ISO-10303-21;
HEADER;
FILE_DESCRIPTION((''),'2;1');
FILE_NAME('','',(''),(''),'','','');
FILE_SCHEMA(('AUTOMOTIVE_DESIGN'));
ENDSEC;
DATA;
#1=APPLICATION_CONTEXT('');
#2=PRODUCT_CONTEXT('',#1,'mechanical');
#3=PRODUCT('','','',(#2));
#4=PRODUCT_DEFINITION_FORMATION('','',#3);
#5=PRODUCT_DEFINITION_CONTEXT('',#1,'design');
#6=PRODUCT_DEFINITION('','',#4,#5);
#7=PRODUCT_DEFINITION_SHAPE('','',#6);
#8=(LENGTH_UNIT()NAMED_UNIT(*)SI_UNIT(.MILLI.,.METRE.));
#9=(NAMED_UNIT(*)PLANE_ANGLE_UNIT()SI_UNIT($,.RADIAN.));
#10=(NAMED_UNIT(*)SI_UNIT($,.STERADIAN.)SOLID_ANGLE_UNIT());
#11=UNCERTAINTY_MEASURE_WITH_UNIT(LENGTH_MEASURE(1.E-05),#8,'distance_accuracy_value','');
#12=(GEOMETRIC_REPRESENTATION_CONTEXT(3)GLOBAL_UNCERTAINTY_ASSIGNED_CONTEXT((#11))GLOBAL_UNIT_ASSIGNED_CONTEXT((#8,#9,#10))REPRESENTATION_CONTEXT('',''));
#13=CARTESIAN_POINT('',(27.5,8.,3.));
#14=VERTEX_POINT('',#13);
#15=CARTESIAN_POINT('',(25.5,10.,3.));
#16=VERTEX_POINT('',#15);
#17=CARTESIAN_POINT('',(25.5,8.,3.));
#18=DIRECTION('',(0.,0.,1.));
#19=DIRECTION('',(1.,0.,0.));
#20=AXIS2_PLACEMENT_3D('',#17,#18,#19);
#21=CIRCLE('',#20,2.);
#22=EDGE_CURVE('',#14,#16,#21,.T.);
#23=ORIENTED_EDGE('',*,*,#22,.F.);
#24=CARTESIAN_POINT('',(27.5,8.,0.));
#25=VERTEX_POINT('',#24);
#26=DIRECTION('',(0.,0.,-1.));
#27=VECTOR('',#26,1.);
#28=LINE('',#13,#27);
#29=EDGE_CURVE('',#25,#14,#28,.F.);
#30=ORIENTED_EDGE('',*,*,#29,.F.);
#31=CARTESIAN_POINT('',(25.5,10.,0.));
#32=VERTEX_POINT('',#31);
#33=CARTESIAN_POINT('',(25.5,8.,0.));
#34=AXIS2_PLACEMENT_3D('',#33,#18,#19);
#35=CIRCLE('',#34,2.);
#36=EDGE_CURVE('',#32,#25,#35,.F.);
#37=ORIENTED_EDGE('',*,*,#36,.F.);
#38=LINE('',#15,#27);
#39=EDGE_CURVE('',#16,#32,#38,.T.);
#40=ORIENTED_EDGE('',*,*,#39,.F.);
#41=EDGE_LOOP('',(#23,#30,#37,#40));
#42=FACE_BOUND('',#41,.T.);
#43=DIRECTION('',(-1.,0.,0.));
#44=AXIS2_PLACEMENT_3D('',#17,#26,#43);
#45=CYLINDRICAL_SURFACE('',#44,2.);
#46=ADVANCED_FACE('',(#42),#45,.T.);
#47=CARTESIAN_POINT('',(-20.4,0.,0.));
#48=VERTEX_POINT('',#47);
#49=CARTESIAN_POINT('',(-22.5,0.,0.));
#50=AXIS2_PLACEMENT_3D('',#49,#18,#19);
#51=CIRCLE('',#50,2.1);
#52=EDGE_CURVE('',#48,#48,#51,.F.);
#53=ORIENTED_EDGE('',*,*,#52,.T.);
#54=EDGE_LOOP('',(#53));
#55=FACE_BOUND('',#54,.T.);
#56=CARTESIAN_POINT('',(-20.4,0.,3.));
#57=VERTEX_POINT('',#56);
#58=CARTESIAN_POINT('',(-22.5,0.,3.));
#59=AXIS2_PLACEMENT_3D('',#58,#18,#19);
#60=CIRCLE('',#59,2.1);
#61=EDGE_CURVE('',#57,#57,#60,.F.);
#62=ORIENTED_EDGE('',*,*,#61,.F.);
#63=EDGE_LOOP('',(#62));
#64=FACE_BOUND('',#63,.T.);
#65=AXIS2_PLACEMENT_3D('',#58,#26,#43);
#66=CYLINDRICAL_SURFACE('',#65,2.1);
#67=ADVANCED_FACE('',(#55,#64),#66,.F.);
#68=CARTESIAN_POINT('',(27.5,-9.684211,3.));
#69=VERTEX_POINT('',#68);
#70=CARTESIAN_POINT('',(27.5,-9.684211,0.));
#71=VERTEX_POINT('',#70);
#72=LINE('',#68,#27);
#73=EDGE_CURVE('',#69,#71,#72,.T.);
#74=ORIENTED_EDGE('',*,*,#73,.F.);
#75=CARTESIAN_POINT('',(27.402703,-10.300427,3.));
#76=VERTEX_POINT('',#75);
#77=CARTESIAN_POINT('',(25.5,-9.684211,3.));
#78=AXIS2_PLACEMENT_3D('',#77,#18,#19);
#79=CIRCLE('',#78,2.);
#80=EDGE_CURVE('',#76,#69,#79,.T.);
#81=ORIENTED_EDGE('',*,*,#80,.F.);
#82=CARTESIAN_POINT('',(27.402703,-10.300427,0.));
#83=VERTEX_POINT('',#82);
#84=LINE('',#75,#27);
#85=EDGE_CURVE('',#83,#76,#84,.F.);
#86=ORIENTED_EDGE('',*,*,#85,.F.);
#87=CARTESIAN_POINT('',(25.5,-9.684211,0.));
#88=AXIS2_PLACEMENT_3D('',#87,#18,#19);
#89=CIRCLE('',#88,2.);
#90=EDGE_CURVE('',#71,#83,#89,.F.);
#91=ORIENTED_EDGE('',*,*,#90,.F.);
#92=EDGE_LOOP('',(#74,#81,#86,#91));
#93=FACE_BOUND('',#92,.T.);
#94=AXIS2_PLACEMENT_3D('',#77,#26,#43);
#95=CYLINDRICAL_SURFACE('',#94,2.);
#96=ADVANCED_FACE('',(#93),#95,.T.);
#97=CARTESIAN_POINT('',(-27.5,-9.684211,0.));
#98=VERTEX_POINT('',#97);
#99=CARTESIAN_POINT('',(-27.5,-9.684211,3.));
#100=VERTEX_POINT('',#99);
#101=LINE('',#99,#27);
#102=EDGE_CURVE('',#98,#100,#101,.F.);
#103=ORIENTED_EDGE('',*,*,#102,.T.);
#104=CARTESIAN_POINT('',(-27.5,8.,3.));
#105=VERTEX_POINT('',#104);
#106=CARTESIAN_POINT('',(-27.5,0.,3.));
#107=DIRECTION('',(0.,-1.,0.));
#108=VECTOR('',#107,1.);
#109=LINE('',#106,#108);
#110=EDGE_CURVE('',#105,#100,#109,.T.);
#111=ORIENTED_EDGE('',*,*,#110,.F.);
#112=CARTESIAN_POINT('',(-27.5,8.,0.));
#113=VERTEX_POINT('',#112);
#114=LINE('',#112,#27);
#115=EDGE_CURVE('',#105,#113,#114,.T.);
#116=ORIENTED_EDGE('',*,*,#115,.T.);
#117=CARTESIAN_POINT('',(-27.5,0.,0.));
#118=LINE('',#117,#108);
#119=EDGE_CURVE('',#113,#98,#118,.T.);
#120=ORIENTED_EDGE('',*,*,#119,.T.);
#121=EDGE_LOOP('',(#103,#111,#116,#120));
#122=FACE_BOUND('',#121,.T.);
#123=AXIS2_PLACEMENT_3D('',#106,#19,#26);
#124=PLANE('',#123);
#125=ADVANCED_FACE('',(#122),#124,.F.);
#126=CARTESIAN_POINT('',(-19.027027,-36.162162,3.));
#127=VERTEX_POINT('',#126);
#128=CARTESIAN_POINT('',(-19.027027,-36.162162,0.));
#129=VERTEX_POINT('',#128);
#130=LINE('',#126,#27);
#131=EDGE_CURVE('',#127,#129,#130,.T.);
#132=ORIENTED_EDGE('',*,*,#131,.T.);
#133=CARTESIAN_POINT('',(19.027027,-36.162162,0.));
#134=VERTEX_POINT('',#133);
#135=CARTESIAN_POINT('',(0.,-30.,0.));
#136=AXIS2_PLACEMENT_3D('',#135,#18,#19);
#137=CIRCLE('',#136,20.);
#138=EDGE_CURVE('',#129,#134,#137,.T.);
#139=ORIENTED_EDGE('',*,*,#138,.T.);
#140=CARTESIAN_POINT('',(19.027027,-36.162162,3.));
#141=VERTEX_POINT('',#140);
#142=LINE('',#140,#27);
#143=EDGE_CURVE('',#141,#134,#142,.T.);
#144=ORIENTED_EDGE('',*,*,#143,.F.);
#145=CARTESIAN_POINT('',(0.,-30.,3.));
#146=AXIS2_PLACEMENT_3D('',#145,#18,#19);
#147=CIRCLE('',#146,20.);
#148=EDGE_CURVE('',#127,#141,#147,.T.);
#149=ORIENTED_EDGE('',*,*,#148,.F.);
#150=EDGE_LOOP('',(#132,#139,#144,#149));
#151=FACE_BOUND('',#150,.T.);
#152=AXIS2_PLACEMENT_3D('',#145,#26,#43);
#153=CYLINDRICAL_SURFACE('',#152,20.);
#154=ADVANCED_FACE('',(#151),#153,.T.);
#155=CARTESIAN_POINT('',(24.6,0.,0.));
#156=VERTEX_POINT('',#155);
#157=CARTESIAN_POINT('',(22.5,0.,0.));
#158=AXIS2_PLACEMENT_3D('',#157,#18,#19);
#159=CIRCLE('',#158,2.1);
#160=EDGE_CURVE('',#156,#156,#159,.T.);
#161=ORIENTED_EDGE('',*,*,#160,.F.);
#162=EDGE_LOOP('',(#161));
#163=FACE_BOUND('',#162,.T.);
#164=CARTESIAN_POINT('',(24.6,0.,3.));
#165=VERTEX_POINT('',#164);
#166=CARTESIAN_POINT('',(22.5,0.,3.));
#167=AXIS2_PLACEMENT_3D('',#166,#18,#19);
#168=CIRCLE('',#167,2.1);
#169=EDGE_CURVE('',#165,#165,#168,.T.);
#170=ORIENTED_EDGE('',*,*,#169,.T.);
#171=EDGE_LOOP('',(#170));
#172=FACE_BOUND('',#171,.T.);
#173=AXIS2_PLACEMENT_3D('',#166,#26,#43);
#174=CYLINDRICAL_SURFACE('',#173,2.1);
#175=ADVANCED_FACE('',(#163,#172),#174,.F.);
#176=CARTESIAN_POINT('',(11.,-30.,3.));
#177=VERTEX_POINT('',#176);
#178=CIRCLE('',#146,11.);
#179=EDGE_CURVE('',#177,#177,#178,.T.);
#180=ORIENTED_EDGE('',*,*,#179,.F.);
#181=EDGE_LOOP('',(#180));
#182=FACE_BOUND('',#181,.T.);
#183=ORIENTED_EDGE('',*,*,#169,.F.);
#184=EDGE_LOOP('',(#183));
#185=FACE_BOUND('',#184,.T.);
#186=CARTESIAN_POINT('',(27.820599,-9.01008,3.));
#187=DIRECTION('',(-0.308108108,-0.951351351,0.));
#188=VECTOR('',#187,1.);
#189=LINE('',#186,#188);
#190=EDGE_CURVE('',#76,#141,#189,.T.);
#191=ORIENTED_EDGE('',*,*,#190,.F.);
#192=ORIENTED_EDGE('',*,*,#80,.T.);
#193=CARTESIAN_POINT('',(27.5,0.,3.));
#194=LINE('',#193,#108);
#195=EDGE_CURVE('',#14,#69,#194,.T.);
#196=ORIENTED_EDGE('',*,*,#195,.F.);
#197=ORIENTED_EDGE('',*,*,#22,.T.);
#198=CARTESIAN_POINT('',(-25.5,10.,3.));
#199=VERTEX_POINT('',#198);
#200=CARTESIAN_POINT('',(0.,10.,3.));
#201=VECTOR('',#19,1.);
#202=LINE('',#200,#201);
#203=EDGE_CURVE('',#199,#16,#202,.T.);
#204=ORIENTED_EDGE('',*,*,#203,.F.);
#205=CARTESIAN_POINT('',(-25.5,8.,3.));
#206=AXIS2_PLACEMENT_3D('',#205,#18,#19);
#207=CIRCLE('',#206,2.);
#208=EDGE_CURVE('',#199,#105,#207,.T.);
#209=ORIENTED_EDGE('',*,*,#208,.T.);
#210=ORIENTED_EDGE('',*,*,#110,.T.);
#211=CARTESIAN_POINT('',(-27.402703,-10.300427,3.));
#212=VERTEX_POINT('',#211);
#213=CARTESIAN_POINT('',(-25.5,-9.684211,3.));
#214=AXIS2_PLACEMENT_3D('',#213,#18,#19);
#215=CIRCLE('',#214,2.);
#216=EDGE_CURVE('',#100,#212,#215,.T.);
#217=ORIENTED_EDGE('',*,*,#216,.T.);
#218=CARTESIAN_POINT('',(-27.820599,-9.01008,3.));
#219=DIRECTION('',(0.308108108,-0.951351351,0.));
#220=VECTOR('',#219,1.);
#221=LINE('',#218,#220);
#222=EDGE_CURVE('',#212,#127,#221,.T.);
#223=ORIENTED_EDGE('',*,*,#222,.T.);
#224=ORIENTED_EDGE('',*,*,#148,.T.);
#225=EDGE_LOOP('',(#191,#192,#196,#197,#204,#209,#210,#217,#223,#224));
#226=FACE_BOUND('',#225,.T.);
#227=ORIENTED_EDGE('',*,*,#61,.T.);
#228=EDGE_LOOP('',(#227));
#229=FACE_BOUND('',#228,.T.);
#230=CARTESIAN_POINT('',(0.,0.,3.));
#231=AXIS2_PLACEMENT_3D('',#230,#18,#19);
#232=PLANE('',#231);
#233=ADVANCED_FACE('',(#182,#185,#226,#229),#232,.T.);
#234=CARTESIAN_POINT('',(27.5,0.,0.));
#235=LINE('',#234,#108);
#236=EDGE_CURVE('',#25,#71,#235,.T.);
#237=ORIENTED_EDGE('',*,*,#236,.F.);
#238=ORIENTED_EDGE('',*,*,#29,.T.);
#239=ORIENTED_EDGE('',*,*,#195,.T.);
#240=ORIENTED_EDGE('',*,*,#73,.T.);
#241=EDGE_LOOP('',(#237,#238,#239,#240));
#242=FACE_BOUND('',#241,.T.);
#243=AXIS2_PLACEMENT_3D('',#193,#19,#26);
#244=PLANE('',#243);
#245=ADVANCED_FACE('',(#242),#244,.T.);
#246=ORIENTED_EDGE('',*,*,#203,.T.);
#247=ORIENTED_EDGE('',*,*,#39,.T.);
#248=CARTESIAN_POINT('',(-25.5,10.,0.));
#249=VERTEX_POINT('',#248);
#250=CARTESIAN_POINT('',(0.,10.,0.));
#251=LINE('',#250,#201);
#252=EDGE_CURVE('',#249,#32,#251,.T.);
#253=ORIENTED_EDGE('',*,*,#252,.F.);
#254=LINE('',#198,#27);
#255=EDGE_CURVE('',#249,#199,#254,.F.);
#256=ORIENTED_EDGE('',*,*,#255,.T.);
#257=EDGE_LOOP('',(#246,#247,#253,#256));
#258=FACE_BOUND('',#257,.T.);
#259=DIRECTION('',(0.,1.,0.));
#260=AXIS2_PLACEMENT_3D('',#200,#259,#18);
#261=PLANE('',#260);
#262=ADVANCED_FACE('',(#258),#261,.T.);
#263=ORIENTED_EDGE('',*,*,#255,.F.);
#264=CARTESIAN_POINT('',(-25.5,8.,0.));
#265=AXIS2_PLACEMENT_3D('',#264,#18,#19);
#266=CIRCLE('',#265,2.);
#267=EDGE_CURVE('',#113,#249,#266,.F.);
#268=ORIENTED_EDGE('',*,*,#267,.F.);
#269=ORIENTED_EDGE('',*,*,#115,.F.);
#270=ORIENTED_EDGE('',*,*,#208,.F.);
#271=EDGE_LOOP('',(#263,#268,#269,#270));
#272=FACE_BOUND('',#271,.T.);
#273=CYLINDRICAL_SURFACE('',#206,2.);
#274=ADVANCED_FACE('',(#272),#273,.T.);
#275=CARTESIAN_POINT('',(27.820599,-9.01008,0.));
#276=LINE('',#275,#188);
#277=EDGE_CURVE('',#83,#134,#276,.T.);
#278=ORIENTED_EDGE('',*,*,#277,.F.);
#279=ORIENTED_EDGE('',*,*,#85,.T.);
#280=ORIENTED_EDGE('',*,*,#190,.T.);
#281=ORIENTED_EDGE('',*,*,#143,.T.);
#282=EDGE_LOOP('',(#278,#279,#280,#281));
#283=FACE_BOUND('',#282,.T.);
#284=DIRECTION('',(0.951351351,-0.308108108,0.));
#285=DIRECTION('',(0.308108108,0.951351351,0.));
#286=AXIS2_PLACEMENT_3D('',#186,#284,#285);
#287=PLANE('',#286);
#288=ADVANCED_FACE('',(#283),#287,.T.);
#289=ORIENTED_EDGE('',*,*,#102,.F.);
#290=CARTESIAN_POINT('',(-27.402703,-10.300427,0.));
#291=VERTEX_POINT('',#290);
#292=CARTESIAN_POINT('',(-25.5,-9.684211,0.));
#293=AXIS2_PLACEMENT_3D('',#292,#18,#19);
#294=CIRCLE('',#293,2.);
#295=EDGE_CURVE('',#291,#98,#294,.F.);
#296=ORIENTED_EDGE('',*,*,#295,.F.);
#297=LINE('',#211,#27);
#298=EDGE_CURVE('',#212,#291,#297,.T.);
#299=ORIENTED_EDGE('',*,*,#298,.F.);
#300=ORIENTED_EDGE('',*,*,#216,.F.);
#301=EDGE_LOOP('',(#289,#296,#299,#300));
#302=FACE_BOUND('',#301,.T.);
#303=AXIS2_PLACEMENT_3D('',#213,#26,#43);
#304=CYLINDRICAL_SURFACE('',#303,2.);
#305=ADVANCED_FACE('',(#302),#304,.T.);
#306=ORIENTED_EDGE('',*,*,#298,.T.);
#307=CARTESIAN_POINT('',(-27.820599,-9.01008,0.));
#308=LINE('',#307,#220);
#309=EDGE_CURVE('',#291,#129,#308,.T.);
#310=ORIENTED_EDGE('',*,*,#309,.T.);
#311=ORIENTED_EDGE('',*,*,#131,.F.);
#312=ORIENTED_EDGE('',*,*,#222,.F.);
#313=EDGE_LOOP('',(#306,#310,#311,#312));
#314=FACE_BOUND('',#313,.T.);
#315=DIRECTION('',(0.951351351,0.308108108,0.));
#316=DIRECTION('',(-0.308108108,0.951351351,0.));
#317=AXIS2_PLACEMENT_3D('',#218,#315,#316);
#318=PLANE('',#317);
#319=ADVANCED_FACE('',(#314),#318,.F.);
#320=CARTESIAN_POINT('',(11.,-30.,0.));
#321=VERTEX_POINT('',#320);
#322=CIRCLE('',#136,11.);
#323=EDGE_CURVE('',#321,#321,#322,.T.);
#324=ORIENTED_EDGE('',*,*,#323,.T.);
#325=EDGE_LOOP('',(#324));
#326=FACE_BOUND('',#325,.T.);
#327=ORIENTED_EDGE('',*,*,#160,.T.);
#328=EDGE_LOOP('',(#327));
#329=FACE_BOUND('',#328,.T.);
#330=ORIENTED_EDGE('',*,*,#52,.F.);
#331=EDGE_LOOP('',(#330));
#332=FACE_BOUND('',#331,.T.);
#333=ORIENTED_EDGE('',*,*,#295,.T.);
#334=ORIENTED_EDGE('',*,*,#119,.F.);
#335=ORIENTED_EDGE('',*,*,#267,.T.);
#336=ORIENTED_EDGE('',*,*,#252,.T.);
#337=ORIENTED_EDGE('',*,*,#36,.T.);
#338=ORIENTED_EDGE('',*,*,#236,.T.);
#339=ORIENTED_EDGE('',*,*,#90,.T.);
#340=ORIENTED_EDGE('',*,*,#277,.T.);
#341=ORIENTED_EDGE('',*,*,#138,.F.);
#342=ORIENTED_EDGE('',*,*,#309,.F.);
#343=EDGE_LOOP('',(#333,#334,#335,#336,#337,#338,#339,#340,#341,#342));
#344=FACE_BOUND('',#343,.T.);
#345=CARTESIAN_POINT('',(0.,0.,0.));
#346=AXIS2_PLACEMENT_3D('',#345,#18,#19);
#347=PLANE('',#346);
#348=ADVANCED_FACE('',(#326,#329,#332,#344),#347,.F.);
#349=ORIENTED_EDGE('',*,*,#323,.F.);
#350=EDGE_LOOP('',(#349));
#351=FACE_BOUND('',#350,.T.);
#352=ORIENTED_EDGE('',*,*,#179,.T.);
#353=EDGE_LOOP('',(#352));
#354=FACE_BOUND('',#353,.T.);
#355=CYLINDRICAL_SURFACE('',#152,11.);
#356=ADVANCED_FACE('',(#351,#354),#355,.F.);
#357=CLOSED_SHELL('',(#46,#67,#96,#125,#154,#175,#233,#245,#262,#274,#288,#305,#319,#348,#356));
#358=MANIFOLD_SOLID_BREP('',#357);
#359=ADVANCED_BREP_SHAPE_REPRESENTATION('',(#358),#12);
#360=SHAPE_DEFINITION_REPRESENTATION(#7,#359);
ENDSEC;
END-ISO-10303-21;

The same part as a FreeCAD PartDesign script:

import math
import FreeCAD as App
import Part
import Sketcher
from FreeCAD import Vector


def edges_at(feature, points):
    """Names of the edges that pass closest to the given points."""
    edges = feature.Shape.Edges
    near = lambda p: min(range(len(edges)), key=lambda i: edges[i].distToShape(Part.Vertex(*p))[0])
    return sorted({f"Edge{near(p) + 1}" for p in points})

doc = App.newDocument("Part")
body = doc.addObject("PartDesign::Body", "Body")

sketch1 = body.newObject("Sketcher::SketchObject", "Sketch")
sketch1.AttachmentSupport = (doc.getObject("XY_Plane"), [""])
sketch1.MapMode = "FlatFace"
sketch1.addGeometry(Part.LineSegment(Vector(-27.5, 10, 0), Vector(-27.5, -10, 0)), False)
sketch1.addGeometry(Part.LineSegment(Vector(-27.5, -10, 0), Vector(-19.027027, -36.162162, 0)), False)
sketch1.addGeometry(Part.ArcOfCircle(Part.Circle(Vector(0, -30, 0), Vector(0, 0, 1), 20), math.radians(-162.054747), math.radians(-17.945253)), False)
sketch1.addGeometry(Part.LineSegment(Vector(19.027027, -36.162162, 0), Vector(27.5, -10, 0)), False)
sketch1.addGeometry(Part.LineSegment(Vector(27.5, -10, 0), Vector(27.5, 10, 0)), False)
sketch1.addGeometry(Part.LineSegment(Vector(27.5, 10, 0), Vector(-27.5, 10, 0)), False)
sketch1.addGeometry(Part.Circle(Vector(-22.5, 0, 0), Vector(0, 0, 1), 2.1), False)
sketch1.addGeometry(Part.Circle(Vector(22.5, 0, 0), Vector(0, 0, 1), 2.1), False)
sketch1.addGeometry(Part.Circle(Vector(0, -30, 0), Vector(0, 0, 1), 11), False)
sketch1.addConstraint(Sketcher.Constraint("Coincident", 0, 2, 1, 1))
sketch1.addConstraint(Sketcher.Constraint("Tangent", 1, 2, 2, 1))
sketch1.addConstraint(Sketcher.Constraint("Tangent", 2, 2, 3, 1))
sketch1.addConstraint(Sketcher.Constraint("Coincident", 3, 2, 4, 1))
sketch1.addConstraint(Sketcher.Constraint("Coincident", 4, 2, 5, 1))
sketch1.addConstraint(Sketcher.Constraint("Coincident", 5, 2, 0, 1))
sketch1.addConstraint(Sketcher.Constraint("Vertical", 0))
sketch1.addConstraint(Sketcher.Constraint("Vertical", 4))
sketch1.addConstraint(Sketcher.Constraint("Horizontal", 5))
sketch1.addConstraint(Sketcher.Constraint("Coincident", 8, 3, 2, 3))
sketch1.addConstraint(Sketcher.Constraint("Equal", 6, 7))
sketch1.addConstraint(Sketcher.Constraint("Symmetric", 6, 3, 7, 3, -1, 1))
sketch1.addConstraint(Sketcher.Constraint("Symmetric", 0, 2, 4, 2, -1, 1))
sketch1.addConstraint(Sketcher.Constraint("Symmetric", 1, 2, 2, 2, -2))
sketch1.addConstraint(Sketcher.Constraint("PointOnObject", 6, 3, -1))
sketch1.addConstraint(Sketcher.Constraint("Diameter", 8, 22.0))
sketch1.addConstraint(Sketcher.Constraint("Radius", 2, 20.0))
sketch1.addConstraint(Sketcher.Constraint("Diameter", 6, 4.2))
sketch1.addConstraint(Sketcher.Constraint("DistanceX", 5, 2, 5, 1, 55.0))
sketch1.addConstraint(Sketcher.Constraint("DistanceY", 0, 2, 0, 1, 20.0))
sketch1.addConstraint(Sketcher.Constraint("DistanceY", 2, 3, -1, 1, 30.0))
sketch1.addConstraint(Sketcher.Constraint("DistanceX", 6, 3, 7, 3, 45.0))
pad1 = body.newObject("PartDesign::Pad", "Pad")
pad1.Profile = sketch1
pad1.Length = 3
doc.recompute()

fillet = body.newObject("PartDesign::Fillet", "Fillet")
fillet.Base = (pad1, edges_at(pad1, [
    (27.5, -10, 1.5),
    (-27.5, -10, 1.5),
    (-27.5, 10, 1.5),
    (27.5, 10, 1.5),
]))
fillet.Radius = 2

doc.recompute()
